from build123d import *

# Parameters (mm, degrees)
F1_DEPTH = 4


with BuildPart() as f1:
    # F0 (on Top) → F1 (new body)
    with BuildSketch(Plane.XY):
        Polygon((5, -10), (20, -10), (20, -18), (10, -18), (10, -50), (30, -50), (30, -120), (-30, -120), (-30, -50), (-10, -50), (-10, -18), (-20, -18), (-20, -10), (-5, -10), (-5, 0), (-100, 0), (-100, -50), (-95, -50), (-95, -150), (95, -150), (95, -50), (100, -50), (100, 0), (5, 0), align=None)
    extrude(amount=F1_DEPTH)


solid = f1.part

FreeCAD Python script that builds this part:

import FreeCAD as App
import Part
import Sketcher


def add_polygon(sketch, points):
    """Adds a closed chain of lines whose ends are joined by coincident constraints."""
    first, n = sketch.GeometryCount, len(points)
    for a, b in zip(points, points[1:] + points[:1]):
        sketch.addGeometry(Part.LineSegment(App.Vector(*a, 0), App.Vector(*b, 0)), False)
    for i in range(n):
        sketch.addConstraint(Sketcher.Constraint("Coincident", first + i, 2, first + (i + 1) % n, 1))

doc = App.newDocument("Part")
body = doc.addObject("PartDesign::Body", "Body")

# Sketch on XY plane
sketch1 = body.newObject("Sketcher::SketchObject", "Sketch")
sketch1.AttachmentSupport = (doc.getObject("XY_Plane"), [""])
sketch1.MapMode = "FlatFace"
add_polygon(sketch1, [(5, -10), (20, -10), (20, -18), (10, -18), (10, -50), (30, -50), (30, -120), (-30, -120), (-30, -50), (-10, -50), (-10, -18), (-20, -18), (-20, -10), (-5, -10), (-5, 0), (-100, 0), (-100, -50), (-95, -50), (-95, -150), (95, -150), (95, -50), (100, -50), (100, 0), (5, 0)])  # lines 0-23
sketch1.addConstraint(Sketcher.Constraint("Horizontal", 0))
sketch1.addConstraint(Sketcher.Constraint("Vertical", 1))
sketch1.addConstraint(Sketcher.Constraint("Horizontal", 2))
sketch1.addConstraint(Sketcher.Constraint("Vertical", 3))
sketch1.addConstraint(Sketcher.Constraint("Horizontal", 4))
sketch1.addConstraint(Sketcher.Constraint("Vertical", 5))
sketch1.addConstraint(Sketcher.Constraint("Horizontal", 6))
sketch1.addConstraint(Sketcher.Constraint("Vertical", 7))
sketch1.addConstraint(Sketcher.Constraint("Horizontal", 8))
sketch1.addConstraint(Sketcher.Constraint("Vertical", 9))
sketch1.addConstraint(Sketcher.Constraint("Horizontal", 10))
sketch1.addConstraint(Sketcher.Constraint("Vertical", 11))
sketch1.addConstraint(Sketcher.Constraint("Horizontal", 12))
sketch1.addConstraint(Sketcher.Constraint("Vertical", 13))
sketch1.addConstraint(Sketcher.Constraint("Horizontal", 14))
sketch1.addConstraint(Sketcher.Constraint("Vertical", 15))
sketch1.addConstraint(Sketcher.Constraint("Horizontal", 16))
sketch1.addConstraint(Sketcher.Constraint("Vertical", 17))
sketch1.addConstraint(Sketcher.Constraint("Horizontal", 18))
sketch1.addConstraint(Sketcher.Constraint("Vertical", 19))
sketch1.addConstraint(Sketcher.Constraint("Horizontal", 20))
sketch1.addConstraint(Sketcher.Constraint("Vertical", 21))
sketch1.addConstraint(Sketcher.Constraint("Horizontal", 22))
sketch1.addConstraint(Sketcher.Constraint("Vertical", 23))
sketch1.addConstraint(Sketcher.Constraint("Symmetric", 14, 2, 21, 2, -1, 1))
sketch1.addConstraint(Sketcher.Constraint("Symmetric", 4, 2, 7, 2, -2))
sketch1.addConstraint(Sketcher.Constraint("Symmetric", 2, 2, 9, 2, -2))
sketch1.addConstraint(Sketcher.Constraint("Symmetric", 0, 2, 11, 2, -2))
sketch1.addConstraint(Sketcher.Constraint("Symmetric", 16, 2, 19, 2, -2))
sketch1.addConstraint(Sketcher.Constraint("Symmetric", 13, 2, 22, 2, -2))
sketch1.addConstraint(Sketcher.Constraint("Horizontal", 8, 2, 15, 2))
sketch1.addConstraint(Sketcher.Constraint("Equal", 10, 13))
sketch1.addConstraint(Sketcher.Constraint("DistanceX", 0, 1, 0, 2, 15.0))
sketch1.addConstraint(Sketcher.Constraint("DistanceX", 2, 2, 2, 1, 10.0))
sketch1.addConstraint(Sketcher.Constraint("DistanceX", 4, 1, 4, 2, 20.0))
sketch1.addConstraint(Sketcher.Constraint("DistanceX", 6, 2, 6, 1, 60.0))
sketch1.addConstraint(Sketcher.Constraint("DistanceX", 14, 2, 14, 1, 95.0))
sketch1.addConstraint(Sketcher.Constraint("DistanceX", 16, 1, 16, 2, 5.0))
sketch1.addConstraint(Sketcher.Constraint("DistanceY", 1, 2, 1, 1, 8.0))
sketch1.addConstraint(Sketcher.Constraint("DistanceY", 3, 2, 3, 1, 32.0))
sketch1.addConstraint(Sketcher.Constraint("DistanceY", 5, 2, 5, 1, 70.0))
sketch1.addConstraint(Sketcher.Constraint("DistanceY", 17, 2, 17, 1, 100.0))
pad1 = body.newObject("PartDesign::Pad", "Pad")
pad1.Profile = sketch1
pad1.Length = 4

doc.recompute()
